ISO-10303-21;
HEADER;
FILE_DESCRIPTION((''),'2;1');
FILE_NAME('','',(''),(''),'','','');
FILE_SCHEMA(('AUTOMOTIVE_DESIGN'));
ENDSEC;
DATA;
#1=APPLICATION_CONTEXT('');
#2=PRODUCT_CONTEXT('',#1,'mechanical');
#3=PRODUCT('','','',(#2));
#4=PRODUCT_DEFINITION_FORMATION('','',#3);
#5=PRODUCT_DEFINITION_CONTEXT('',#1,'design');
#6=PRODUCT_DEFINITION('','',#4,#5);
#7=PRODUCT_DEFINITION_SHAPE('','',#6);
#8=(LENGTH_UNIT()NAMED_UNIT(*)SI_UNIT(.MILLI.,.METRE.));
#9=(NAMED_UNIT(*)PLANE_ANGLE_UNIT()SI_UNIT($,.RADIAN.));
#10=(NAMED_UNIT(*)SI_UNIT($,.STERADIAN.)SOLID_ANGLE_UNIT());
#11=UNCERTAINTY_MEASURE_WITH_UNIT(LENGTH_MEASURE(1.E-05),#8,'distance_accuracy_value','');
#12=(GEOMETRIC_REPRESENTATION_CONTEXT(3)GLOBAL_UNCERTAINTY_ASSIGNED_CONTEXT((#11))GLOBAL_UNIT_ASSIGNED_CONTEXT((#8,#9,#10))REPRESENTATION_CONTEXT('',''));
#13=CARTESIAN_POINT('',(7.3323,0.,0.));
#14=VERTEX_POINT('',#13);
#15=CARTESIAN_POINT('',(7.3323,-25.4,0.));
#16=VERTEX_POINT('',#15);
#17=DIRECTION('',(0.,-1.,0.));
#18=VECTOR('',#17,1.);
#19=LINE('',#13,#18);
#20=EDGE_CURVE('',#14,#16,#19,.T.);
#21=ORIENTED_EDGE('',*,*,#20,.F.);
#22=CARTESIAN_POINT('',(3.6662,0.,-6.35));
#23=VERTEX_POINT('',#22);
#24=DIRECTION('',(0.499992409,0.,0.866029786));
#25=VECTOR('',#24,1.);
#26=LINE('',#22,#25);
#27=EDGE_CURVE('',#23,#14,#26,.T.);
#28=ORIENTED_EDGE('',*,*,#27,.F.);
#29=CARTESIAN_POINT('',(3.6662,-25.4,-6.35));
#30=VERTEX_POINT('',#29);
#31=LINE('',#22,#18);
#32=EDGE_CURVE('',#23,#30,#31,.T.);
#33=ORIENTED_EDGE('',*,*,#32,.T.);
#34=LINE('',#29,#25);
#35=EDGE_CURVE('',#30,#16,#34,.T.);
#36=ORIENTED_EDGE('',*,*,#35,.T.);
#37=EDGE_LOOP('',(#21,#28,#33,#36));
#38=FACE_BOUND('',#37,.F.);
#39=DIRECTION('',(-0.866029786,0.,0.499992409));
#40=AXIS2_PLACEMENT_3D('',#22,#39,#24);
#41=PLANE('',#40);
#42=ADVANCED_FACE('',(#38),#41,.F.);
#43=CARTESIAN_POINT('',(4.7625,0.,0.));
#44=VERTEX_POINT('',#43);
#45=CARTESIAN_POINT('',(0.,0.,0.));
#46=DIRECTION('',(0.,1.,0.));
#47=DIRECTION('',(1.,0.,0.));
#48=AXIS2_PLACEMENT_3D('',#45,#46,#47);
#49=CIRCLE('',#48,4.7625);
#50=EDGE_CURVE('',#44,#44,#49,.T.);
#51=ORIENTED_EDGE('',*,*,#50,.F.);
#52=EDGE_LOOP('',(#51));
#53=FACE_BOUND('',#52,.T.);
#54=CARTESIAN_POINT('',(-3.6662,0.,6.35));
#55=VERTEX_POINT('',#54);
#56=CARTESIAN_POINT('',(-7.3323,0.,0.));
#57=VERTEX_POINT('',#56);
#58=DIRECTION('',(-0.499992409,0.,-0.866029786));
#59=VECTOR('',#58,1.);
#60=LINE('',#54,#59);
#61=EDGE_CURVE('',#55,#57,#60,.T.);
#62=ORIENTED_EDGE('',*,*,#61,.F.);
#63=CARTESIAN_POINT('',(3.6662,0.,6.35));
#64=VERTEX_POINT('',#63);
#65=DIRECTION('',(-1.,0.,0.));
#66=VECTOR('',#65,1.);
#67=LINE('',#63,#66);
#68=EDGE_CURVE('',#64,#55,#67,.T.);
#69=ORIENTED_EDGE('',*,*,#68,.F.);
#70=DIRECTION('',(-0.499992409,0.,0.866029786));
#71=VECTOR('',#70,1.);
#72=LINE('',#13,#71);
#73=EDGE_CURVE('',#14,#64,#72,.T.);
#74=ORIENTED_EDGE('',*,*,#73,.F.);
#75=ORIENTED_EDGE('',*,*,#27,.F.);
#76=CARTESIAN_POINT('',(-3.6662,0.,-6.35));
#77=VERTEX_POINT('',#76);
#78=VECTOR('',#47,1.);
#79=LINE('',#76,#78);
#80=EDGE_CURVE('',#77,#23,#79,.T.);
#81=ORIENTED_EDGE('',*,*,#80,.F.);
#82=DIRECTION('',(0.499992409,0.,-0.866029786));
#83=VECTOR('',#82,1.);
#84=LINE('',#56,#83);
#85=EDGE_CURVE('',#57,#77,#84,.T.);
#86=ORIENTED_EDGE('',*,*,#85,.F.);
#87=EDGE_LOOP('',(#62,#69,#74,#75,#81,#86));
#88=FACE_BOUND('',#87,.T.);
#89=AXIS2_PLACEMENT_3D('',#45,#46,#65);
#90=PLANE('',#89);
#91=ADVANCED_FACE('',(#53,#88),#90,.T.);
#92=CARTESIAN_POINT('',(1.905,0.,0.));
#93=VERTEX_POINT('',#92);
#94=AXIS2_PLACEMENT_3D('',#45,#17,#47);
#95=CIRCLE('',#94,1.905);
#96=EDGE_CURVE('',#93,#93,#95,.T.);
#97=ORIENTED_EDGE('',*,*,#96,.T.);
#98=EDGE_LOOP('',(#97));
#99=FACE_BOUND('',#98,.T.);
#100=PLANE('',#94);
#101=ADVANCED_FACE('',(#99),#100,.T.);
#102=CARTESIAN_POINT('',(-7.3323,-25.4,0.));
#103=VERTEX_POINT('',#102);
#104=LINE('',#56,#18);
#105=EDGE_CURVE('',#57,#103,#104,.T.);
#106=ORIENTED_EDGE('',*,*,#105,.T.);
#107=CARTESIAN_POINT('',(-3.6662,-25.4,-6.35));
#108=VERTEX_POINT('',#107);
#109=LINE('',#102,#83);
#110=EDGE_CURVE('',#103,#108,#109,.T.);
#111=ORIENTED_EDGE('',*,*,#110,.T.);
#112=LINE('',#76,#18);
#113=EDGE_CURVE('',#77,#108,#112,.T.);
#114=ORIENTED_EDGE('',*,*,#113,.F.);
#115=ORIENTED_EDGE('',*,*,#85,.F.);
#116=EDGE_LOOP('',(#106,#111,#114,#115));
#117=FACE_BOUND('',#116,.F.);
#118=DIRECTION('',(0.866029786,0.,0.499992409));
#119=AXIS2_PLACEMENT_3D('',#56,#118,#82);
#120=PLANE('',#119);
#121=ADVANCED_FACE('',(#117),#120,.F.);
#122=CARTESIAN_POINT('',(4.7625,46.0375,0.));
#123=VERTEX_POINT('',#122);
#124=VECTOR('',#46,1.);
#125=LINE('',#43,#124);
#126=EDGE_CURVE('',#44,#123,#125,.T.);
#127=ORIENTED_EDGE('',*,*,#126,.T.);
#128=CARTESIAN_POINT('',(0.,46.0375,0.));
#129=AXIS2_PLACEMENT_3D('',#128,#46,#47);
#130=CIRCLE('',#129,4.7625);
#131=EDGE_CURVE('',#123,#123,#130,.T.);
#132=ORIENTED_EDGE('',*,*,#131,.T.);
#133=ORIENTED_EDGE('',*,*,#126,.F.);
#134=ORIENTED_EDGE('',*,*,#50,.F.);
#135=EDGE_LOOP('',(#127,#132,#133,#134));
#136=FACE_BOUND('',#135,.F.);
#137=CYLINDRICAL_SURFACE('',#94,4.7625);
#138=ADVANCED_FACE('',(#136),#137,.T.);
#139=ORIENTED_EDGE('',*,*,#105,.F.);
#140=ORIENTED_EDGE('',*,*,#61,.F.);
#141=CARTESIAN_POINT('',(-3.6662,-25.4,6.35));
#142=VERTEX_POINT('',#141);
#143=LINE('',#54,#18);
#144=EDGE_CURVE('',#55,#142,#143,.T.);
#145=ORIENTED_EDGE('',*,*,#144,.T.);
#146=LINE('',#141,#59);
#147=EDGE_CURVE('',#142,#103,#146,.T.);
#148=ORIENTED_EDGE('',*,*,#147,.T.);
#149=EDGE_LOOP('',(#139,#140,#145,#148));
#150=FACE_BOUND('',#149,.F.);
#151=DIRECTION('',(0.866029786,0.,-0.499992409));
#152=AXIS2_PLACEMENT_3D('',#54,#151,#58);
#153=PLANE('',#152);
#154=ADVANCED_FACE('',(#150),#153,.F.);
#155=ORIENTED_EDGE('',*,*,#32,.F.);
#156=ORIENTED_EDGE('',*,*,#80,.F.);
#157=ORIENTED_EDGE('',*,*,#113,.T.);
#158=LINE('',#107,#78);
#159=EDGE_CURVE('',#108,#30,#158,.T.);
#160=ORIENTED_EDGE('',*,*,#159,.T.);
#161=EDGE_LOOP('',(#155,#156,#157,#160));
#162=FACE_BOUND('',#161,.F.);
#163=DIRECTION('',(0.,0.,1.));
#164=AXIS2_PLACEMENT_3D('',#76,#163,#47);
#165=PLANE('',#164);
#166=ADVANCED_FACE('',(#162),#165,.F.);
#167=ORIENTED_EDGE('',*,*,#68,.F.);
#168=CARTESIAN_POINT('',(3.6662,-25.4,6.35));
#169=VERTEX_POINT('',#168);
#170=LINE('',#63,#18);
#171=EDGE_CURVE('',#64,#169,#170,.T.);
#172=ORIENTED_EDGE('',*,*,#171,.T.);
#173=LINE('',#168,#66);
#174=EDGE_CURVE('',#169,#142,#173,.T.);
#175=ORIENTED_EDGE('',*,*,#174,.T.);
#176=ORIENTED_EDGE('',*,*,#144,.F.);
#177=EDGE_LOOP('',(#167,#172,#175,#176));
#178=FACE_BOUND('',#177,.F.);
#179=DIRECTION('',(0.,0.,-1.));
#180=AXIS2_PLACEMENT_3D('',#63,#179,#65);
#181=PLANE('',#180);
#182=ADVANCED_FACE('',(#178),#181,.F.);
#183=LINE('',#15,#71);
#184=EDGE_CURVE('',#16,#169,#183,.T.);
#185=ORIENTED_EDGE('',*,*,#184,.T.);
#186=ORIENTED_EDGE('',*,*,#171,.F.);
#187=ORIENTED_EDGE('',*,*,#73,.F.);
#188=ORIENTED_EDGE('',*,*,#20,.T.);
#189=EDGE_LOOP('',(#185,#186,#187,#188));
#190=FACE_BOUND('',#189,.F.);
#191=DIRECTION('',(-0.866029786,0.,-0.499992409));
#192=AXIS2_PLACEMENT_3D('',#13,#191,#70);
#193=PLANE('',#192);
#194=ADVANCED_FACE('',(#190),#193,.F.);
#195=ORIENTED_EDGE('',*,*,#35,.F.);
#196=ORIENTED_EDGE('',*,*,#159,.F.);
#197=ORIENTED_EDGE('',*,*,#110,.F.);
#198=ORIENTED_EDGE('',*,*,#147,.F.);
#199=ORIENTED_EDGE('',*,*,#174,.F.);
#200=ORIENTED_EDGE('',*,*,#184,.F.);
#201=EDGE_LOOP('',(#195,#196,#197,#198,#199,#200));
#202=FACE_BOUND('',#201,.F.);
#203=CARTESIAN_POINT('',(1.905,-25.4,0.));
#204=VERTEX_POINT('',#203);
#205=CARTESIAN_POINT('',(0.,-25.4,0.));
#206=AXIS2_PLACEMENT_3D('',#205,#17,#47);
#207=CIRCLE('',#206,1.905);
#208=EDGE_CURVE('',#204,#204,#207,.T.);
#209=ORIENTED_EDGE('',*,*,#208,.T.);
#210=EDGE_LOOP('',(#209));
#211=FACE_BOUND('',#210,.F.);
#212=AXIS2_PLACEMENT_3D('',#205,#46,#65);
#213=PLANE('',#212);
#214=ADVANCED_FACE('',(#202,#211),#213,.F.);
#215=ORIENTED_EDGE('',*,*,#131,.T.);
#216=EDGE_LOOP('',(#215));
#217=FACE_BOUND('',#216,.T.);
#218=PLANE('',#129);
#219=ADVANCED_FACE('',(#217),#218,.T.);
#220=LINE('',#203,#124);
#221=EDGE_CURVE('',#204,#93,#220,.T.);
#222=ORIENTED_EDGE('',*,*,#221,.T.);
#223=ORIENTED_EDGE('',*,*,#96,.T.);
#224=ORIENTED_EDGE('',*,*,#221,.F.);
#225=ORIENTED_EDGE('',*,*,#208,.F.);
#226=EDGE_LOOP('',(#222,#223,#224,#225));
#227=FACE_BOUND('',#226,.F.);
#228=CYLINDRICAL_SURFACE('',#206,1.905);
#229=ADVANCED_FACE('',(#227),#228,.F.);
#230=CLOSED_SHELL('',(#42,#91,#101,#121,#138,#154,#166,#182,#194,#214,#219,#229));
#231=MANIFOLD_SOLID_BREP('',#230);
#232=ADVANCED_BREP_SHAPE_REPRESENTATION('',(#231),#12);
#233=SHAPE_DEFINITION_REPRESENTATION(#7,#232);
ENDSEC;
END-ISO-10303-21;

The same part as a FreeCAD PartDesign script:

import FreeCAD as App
import Part
import Sketcher
Q = App.Units.Quantity

doc = App.newDocument("Part")
body = doc.addObject("PartDesign::Body", "Body")

sketch1 = doc.addObject("Sketcher::SketchObject", "Sketch")
body.addObject(sketch1)
sketch1.AttachmentSupport = (doc.XZ_Plane, [""])
sketch1.MapMode = "FlatFace"
sketch1.addGeometry(Part.LineSegment(App.Vector(4, -6, 0), App.Vector(-4, -6, 0)), False)
sketch1.addGeometry(Part.LineSegment(App.Vector(-4, -6, 0), App.Vector(-7, 0, 0)), False)
sketch1.addGeometry(Part.LineSegment(App.Vector(-7, 0, 0), App.Vector(-4, 6, 0)), False)
sketch1.addGeometry(Part.LineSegment(App.Vector(-4, 6, 0), App.Vector(4, 6, 0)), False)
sketch1.addGeometry(Part.LineSegment(App.Vector(4, 6, 0), App.Vector(7, 0, 0)), False)
sketch1.addGeometry(Part.LineSegment(App.Vector(7, 0, 0), App.Vector(4, -6, 0)), False)
sketch1.addConstraint(Sketcher.Constraint("Coincident", 0, 2, 1, 1))
sketch1.addConstraint(Sketcher.Constraint("Coincident", 1, 2, 2, 1))
sketch1.addConstraint(Sketcher.Constraint("Coincident", 2, 2, 3, 1))
sketch1.addConstraint(Sketcher.Constraint("Coincident", 3, 2, 4, 1))
sketch1.addConstraint(Sketcher.Constraint("Coincident", 4, 2, 5, 1))
sketch1.addConstraint(Sketcher.Constraint("Coincident", 5, 2, 0, 1))
sketch1.addConstraint(Sketcher.Constraint("Horizontal", 0))
sketch1.addConstraint(Sketcher.Constraint("Horizontal", 3))
sketch1.addConstraint(Sketcher.Constraint("Symmetric", 0, 2, 3, 2, -1, 1))
sketch1.addConstraint(Sketcher.Constraint("Symmetric", 1, 2, 4, 2, -1, 1))
sketch1.addConstraint(Sketcher.Constraint("PointOnObject", 1, 2, -1))
sketch1.addConstraint(Sketcher.Constraint("Parallel", 2, 5))
sketch1.addConstraint(Sketcher.Constraint("Vertical", 0, 2, 2, 2))
sketch1.addConstraint(Sketcher.Constraint("DistanceY", 0, 2, 2, 2, Q("0.5 in")))
sketch1.addConstraint(Sketcher.Constraint("Angle", 1, Q("119.9995 deg")))
sketch1.addConstraint(Sketcher.Constraint("DistanceX", 1, 2, 3, 2, Q("0.433 in")))
pad1 = doc.addObject("PartDesign::Pad", "Pad")
body.addObject(pad1)
pad1.Profile = sketch1
pad1.Length = Q("1 in")

sketch2 = doc.addObject("Sketcher::SketchObject", "Sketch001")
body.addObject(sketch2)
sketch2.AttachmentSupport = (doc.XZ_Plane, [""])
sketch2.MapMode = "FlatFace"
sketch2.addGeometry(Part.Circle(App.Vector(0, 0, 0), App.Vector(0, 0, 1), 4.8), False)
sketch2.addConstraint(Sketcher.Constraint("Coincident", 0, 3, -1, 1))
sketch2.addConstraint(Sketcher.Constraint("Diameter", 0, Q("0.375 in")))
pad2 = doc.addObject("PartDesign::Pad", "Pad001")
body.addObject(pad2)
pad2.Profile = sketch2
pad2.Length = Q("1.8125 in")
pad2.Reversed = True

sketch3 = doc.addObject("Sketcher::SketchObject", "Sketch002")
body.addObject(sketch3)
sketch3.AttachmentSupport = (doc.XZ_Plane, [""])
sketch3.MapMode = "FlatFace"
sketch3.AttachmentOffset = App.Placement(App.Vector(0, 0, 1 * 25.4), App.Rotation())
sketch3.addGeometry(Part.Circle(App.Vector(0, 0, 0), App.Vector(0, 0, 1), 1.9), False)
sketch3.addConstraint(Sketcher.Constraint("Coincident", 0, 3, -1, 1))
sketch3.addConstraint(Sketcher.Constraint("Diameter", 0, Q("0.15 in")))
pocket1 = doc.addObject("PartDesign::Pocket", "Pocket")
body.addObject(pocket1)
pocket1.Profile = sketch3
pocket1.Length = Q("1 in")

doc.recompute()
